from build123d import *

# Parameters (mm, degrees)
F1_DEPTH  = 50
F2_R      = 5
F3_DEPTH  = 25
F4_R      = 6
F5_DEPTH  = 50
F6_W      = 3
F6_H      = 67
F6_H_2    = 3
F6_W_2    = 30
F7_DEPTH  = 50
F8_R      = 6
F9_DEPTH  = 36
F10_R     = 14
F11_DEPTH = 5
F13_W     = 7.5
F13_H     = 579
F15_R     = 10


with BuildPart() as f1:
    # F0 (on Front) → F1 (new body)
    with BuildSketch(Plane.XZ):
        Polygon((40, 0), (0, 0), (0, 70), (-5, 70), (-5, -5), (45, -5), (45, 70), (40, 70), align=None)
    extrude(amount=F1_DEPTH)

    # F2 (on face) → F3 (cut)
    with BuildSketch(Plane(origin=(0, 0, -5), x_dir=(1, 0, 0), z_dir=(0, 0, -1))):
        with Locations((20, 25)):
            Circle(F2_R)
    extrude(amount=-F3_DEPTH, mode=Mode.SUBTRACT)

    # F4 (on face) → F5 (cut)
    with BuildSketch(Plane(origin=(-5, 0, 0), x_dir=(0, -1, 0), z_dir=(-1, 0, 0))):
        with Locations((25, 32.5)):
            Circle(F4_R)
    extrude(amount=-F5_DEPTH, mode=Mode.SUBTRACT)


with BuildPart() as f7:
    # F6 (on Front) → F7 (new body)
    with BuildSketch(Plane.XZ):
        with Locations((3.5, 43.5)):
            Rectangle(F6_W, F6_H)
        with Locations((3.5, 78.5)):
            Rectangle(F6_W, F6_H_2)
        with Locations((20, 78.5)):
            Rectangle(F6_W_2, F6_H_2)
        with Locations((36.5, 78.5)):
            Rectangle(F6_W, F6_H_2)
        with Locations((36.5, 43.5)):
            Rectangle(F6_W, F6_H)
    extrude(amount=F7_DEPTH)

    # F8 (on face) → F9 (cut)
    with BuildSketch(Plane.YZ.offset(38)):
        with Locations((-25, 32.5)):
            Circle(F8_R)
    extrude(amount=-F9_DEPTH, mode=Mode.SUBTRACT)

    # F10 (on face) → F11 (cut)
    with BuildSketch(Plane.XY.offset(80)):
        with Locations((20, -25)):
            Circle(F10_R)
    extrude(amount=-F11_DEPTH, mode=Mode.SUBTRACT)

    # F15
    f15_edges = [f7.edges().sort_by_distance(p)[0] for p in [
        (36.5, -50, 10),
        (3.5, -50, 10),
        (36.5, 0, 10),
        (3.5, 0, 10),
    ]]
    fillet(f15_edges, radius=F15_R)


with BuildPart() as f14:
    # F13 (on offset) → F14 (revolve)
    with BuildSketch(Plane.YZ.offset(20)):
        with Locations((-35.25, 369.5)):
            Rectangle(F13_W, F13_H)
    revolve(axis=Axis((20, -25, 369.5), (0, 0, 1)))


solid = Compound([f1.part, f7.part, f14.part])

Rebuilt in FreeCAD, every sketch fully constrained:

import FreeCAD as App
import Part
import Sketcher
from FreeCAD import Vector
Q = App.Units.Quantity


def edges_at(feature, points):
    """Names of the edges that pass closest to the given points."""
    edges = feature.Shape.Edges
    near = lambda p: min(range(len(edges)), key=lambda i: edges[i].distToShape(Part.Vertex(*p))[0])
    return sorted({f"Edge{near(p) + 1}" for p in points})

doc = App.newDocument("Part")
body = doc.addObject("PartDesign::Body", "Body")

sketch1 = body.newObject("Sketcher::SketchObject", "Sketch")
sketch1.AttachmentSupport = (doc.getObject("XZ_Plane"), [""])
sketch1.MapMode = "FlatFace"
sketch1.addGeometry(Part.LineSegment(Vector(40, 0, 0), Vector(0, 0, 0)), False)
sketch1.addGeometry(Part.LineSegment(Vector(0, 0, 0), Vector(0, 70, 0)), False)
sketch1.addGeometry(Part.LineSegment(Vector(0, 70, 0), Vector(-5, 70, 0)), False)
sketch1.addGeometry(Part.LineSegment(Vector(-5, 70, 0), Vector(-5, -5, 0)), False)
sketch1.addGeometry(Part.LineSegment(Vector(-5, -5, 0), Vector(45, -5, 0)), False)
sketch1.addGeometry(Part.LineSegment(Vector(45, -5, 0), Vector(45, 70, 0)), False)
sketch1.addGeometry(Part.LineSegment(Vector(45, 70, 0), Vector(40, 70, 0)), False)
sketch1.addGeometry(Part.LineSegment(Vector(40, 70, 0), Vector(40, 0, 0)), False)
sketch1.addConstraint(Sketcher.Constraint("Coincident", 0, 2, 1, 1))
sketch1.addConstraint(Sketcher.Constraint("Coincident", 1, 2, 2, 1))
sketch1.addConstraint(Sketcher.Constraint("Coincident", 2, 2, 3, 1))
sketch1.addConstraint(Sketcher.Constraint("Coincident", 3, 2, 4, 1))
sketch1.addConstraint(Sketcher.Constraint("Coincident", 4, 2, 5, 1))
sketch1.addConstraint(Sketcher.Constraint("Coincident", 5, 2, 6, 1))
sketch1.addConstraint(Sketcher.Constraint("Coincident", 6, 2, 7, 1))
sketch1.addConstraint(Sketcher.Constraint("Coincident", 7, 2, 0, 1))
sketch1.addConstraint(Sketcher.Constraint("Horizontal", 0))
sketch1.addConstraint(Sketcher.Constraint("Vertical", 1))
sketch1.addConstraint(Sketcher.Constraint("Horizontal", 2))
sketch1.addConstraint(Sketcher.Constraint("Vertical", 3))
sketch1.addConstraint(Sketcher.Constraint("Horizontal", 4))
sketch1.addConstraint(Sketcher.Constraint("Vertical", 5))
sketch1.addConstraint(Sketcher.Constraint("Horizontal", 6))
sketch1.addConstraint(Sketcher.Constraint("Vertical", 7))
sketch1.addConstraint(Sketcher.Constraint("Coincident", 0, 2, -1, 1))
sketch1.addConstraint(Sketcher.Constraint("Horizontal", 2, 2, 5, 2))
sketch1.addConstraint(Sketcher.Constraint("Equal", 2, 6))
sketch1.addConstraint(Sketcher.Constraint("DistanceX", 0, 2, 0, 1, Q("40 mm")))
sketch1.addConstraint(Sketcher.Constraint("DistanceX", 2, 2, 2, 1, Q("5 mm")))
sketch1.addConstraint(Sketcher.Constraint("DistanceY", 1, 1, 1, 2, Q("70 mm")))
sketch1.addConstraint(Sketcher.Constraint("DistanceY", 3, 2, 3, 1, Q("75 mm")))
pad1 = body.newObject("PartDesign::Pad", "Pad")
pad1.Profile = sketch1
pad1.Length = 50

sketch2 = body.newObject("Sketcher::SketchObject", "Sketch001")
sketch2.AttachmentSupport = (doc.getObject("XY_Plane"), [""])
sketch2.MapMode = "FlatFace"
sketch2.AttachmentOffset = App.Placement(Vector(0, 0, -5), App.Rotation())
sketch2.addGeometry(Part.Circle(Vector(20, -25, 0), Vector(0, 0, 1), 5), False)
sketch2.addConstraint(Sketcher.Constraint("Diameter", 0, Q("10 mm")))
sketch2.addConstraint(Sketcher.Constraint("DistanceX", -1, 1, 0, 3, Q("20 mm")))
sketch2.addConstraint(Sketcher.Constraint("DistanceY", 0, 3, -1, 1, Q("25 mm")))
pocket1 = body.newObject("PartDesign::Pocket", "Pocket")
pocket1.Profile = sketch2
pocket1.Length = 25
pocket1.Reversed = True

sketch3 = body.newObject("Sketcher::SketchObject", "Sketch002")
sketch3.AttachmentSupport = (doc.getObject("YZ_Plane"), [""])
sketch3.MapMode = "FlatFace"
sketch3.AttachmentOffset = App.Placement(Vector(0, 0, -5), App.Rotation())
sketch3.addGeometry(Part.Circle(Vector(-25, 32, 0), Vector(0, 0, 1), 6), False)
sketch3.addConstraint(Sketcher.Constraint("Diameter", 0, Q("12 mm")))
sketch3.addConstraint(Sketcher.Constraint("DistanceX", 0, 3, -1, 1, Q("25 mm")))
sketch3.addConstraint(Sketcher.Constraint("DistanceY", -1, 1, 0, 3, Q("32.5 mm")))
pocket2 = body.newObject("PartDesign::Pocket", "Pocket001")
pocket2.Profile = sketch3
pocket2.Length = 50
pocket2.Reversed = True
body2 = doc.addObject("PartDesign::Body", "Body001")

sketch4 = body2.newObject("Sketcher::SketchObject", "Sketch003")
sketch4.AttachmentSupport = (doc.getObject("XZ_Plane001"), [""])
sketch4.MapMode = "FlatFace"
sketch4.addGeometry(Part.LineSegment(Vector(2, 10, 0), Vector(5, 10, 0)), False)
sketch4.addGeometry(Part.LineSegment(Vector(5, 10, 0), Vector(5, 77, 0)), False)
sketch4.addGeometry(Part.LineSegment(Vector(5, 77, 0), Vector(35, 77, 0)), False)
sketch4.addGeometry(Part.LineSegment(Vector(35, 77, 0), Vector(35, 10, 0)), False)
sketch4.addGeometry(Part.LineSegment(Vector(35, 10, 0), Vector(38, 10, 0)), False)
sketch4.addGeometry(Part.LineSegment(Vector(38, 10, 0), Vector(38, 80, 0)), False)
sketch4.addGeometry(Part.LineSegment(Vector(38, 80, 0), Vector(2, 80, 0)), False)
sketch4.addGeometry(Part.LineSegment(Vector(2, 80, 0), Vector(2, 10, 0)), False)
sketch4.addConstraint(Sketcher.Constraint("Coincident", 0, 2, 1, 1))
sketch4.addConstraint(Sketcher.Constraint("Coincident", 1, 2, 2, 1))
sketch4.addConstraint(Sketcher.Constraint("Coincident", 2, 2, 3, 1))
sketch4.addConstraint(Sketcher.Constraint("Coincident", 3, 2, 4, 1))
sketch4.addConstraint(Sketcher.Constraint("Coincident", 4, 2, 5, 1))
sketch4.addConstraint(Sketcher.Constraint("Coincident", 5, 2, 6, 1))
sketch4.addConstraint(Sketcher.Constraint("Coincident", 6, 2, 7, 1))
sketch4.addConstraint(Sketcher.Constraint("Coincident", 7, 2, 0, 1))
sketch4.addConstraint(Sketcher.Constraint("Horizontal", 0))
sketch4.addConstraint(Sketcher.Constraint("Vertical", 1))
sketch4.addConstraint(Sketcher.Constraint("Horizontal", 2))
sketch4.addConstraint(Sketcher.Constraint("Vertical", 3))
sketch4.addConstraint(Sketcher.Constraint("Horizontal", 4))
sketch4.addConstraint(Sketcher.Constraint("Vertical", 5))
sketch4.addConstraint(Sketcher.Constraint("Horizontal", 6))
sketch4.addConstraint(Sketcher.Constraint("Vertical", 7))
sketch4.addConstraint(Sketcher.Constraint("Horizontal", 0, 2, 3, 2))
sketch4.addConstraint(Sketcher.Constraint("Equal", 0, 4))
sketch4.addConstraint(Sketcher.Constraint("DistanceX", 0, 1, 0, 2, Q("3 mm")))
sketch4.addConstraint(Sketcher.Constraint("DistanceX", 2, 1, 2, 2, Q("30 mm")))
sketch4.addConstraint(Sketcher.Constraint("DistanceY", 1, 1, 1, 2, Q("67 mm")))
sketch4.addConstraint(Sketcher.Constraint("DistanceY", 5, 1, 5, 2, Q("70 mm")))
sketch4.addConstraint(Sketcher.Constraint("DistanceX", -1, 1, 0, 2, Q("5 mm")))
sketch4.addConstraint(Sketcher.Constraint("DistanceY", -1, 1, 0, 2, Q("10 mm")))
pad2 = body2.newObject("PartDesign::Pad", "Pad001")
pad2.Profile = sketch4
pad2.Length = 50

sketch5 = body2.newObject("Sketcher::SketchObject", "Sketch004")
sketch5.AttachmentSupport = (doc.getObject("YZ_Plane001"), [""])
sketch5.MapMode = "FlatFace"
sketch5.AttachmentOffset = App.Placement(Vector(0, 0, 38), App.Rotation())
sketch5.addGeometry(Part.Circle(Vector(-25, 32, 0), Vector(0, 0, 1), 6), False)
sketch5.addConstraint(Sketcher.Constraint("Diameter", 0, Q("12 mm")))
sketch5.addConstraint(Sketcher.Constraint("DistanceX", 0, 3, -1, 1, Q("25 mm")))
sketch5.addConstraint(Sketcher.Constraint("DistanceY", -1, 1, 0, 3, Q("32.5 mm")))
pocket3 = body2.newObject("PartDesign::Pocket", "Pocket002")
pocket3.Profile = sketch5
pocket3.Length = 36

sketch6 = body2.newObject("Sketcher::SketchObject", "Sketch005")
sketch6.AttachmentSupport = (doc.getObject("XY_Plane001"), [""])
sketch6.MapMode = "FlatFace"
sketch6.AttachmentOffset = App.Placement(Vector(0, 0, 80), App.Rotation())
sketch6.addGeometry(Part.Circle(Vector(20, -25, 0), Vector(0, 0, 1), 14), False)
sketch6.addConstraint(Sketcher.Constraint("Diameter", 0, Q("28 mm")))
sketch6.addConstraint(Sketcher.Constraint("DistanceX", -1, 1, 0, 3, Q("20 mm")))
sketch6.addConstraint(Sketcher.Constraint("DistanceY", 0, 3, -1, 1, Q("25 mm")))
pocket4 = body2.newObject("PartDesign::Pocket", "Pocket003")
pocket4.Profile = sketch6
pocket4.Length = 5
doc.recompute()

fillet = body2.newObject("PartDesign::Fillet", "Fillet")
fillet.Base = (pocket4, edges_at(pocket4, [
    (36.5, -50, 10),
    (3.5, -50, 10),
    (36.5, 0, 10),
    (3.5, 0, 10),
]))
fillet.Radius = 10
body3 = doc.addObject("PartDesign::Body", "Body002")

sketch7 = body3.newObject("Sketcher::SketchObject", "Sketch006")
sketch7.AttachmentSupport = (doc.getObject("YZ_Plane002"), [""])
sketch7.MapMode = "FlatFace"
sketch7.AttachmentOffset = App.Placement(Vector(0, 0, 20), App.Rotation())
sketch7.addGeometry(Part.LineSegment(Vector(-39, 659, 0), Vector(-39, 80, 0)), False)
sketch7.addGeometry(Part.LineSegment(Vector(-39, 80, 0), Vector(-32, 80, 0)), False)
sketch7.addGeometry(Part.LineSegment(Vector(-32, 80, 0), Vector(-32, 659, 0)), False)
sketch7.addGeometry(Part.LineSegment(Vector(-32, 659, 0), Vector(-39, 659, 0)), False)
sketch7.addGeometry(Part.LineSegment(Vector(-25, 80, 0), Vector(-25, 659, 0)), True)
sketch7.addConstraint(Sketcher.Constraint("Coincident", 0, 2, 1, 1))
sketch7.addConstraint(Sketcher.Constraint("Coincident", 1, 2, 2, 1))
sketch7.addConstraint(Sketcher.Constraint("Coincident", 2, 2, 3, 1))
sketch7.addConstraint(Sketcher.Constraint("Coincident", 3, 2, 0, 1))
sketch7.addConstraint(Sketcher.Constraint("Vertical", 0))
sketch7.addConstraint(Sketcher.Constraint("Horizontal", 1))
sketch7.addConstraint(Sketcher.Constraint("Vertical", 2))
sketch7.addConstraint(Sketcher.Constraint("Horizontal", 3))
sketch7.addConstraint(Sketcher.Constraint("Vertical", 4))
sketch7.addConstraint(Sketcher.Constraint("Horizontal", 1, 2, 4, 1))
sketch7.addConstraint(Sketcher.Constraint("Horizontal", 3, 2, 4, 2))
sketch7.addConstraint(Sketcher.Constraint("DistanceY", 0, 2, 0, 1, Q("579 mm")))
sketch7.addConstraint(Sketcher.Constraint("DistanceX", 1, 1, 1, 2, Q("7.5 mm")))
sketch7.addConstraint(Sketcher.Constraint("DistanceX", 0, 2, -1, 1, Q("39 mm")))
sketch7.addConstraint(Sketcher.Constraint("DistanceY", -1, 1, 0, 2, Q("80 mm")))
sketch7.addConstraint(Sketcher.Constraint("DistanceX", 4, 1, -1, 1, Q("25 mm")))
revolution = body3.newObject("PartDesign::Revolution", "Revolution")
revolution.Profile = sketch7
revolution.ReferenceAxis = (sketch7, ["Axis0"])
revolution.Angle = 360

doc.recompute()
